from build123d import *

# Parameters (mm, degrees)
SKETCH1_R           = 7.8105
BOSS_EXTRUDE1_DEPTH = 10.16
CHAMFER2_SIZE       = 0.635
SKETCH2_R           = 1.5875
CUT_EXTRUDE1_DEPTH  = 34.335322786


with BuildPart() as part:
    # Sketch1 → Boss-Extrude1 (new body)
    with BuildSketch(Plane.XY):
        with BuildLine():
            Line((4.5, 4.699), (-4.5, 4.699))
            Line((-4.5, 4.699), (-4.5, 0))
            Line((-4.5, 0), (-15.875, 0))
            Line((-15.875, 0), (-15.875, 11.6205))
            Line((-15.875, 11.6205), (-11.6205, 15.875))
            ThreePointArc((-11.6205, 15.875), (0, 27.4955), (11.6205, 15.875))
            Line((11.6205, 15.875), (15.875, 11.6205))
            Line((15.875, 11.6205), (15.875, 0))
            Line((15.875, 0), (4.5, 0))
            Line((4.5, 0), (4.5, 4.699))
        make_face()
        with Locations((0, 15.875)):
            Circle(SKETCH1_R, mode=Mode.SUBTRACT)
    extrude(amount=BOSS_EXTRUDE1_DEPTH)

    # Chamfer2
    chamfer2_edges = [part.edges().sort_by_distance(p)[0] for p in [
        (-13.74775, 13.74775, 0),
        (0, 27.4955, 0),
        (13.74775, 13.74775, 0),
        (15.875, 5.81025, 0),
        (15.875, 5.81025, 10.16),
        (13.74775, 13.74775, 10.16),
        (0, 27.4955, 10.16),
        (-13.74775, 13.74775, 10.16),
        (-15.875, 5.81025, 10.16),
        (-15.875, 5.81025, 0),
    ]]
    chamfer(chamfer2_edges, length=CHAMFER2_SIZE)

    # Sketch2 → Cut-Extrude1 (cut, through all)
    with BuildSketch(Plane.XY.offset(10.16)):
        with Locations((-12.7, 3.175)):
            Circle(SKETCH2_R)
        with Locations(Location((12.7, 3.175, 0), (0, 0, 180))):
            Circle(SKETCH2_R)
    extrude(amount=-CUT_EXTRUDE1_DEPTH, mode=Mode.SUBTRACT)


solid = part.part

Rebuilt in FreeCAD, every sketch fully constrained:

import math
import FreeCAD as App
import Part
import Sketcher
Q = App.Units.Quantity


def edges_at(feature, points):
    """Names of the edges that pass closest to the given points."""
    edges = feature.Shape.Edges
    near = lambda p: min(range(len(edges)), key=lambda i: edges[i].distToShape(Part.Vertex(*p))[0])
    return sorted({f"Edge{near(p) + 1}" for p in points})

doc = App.newDocument("Part")
params = doc.addObject("Spreadsheet::Sheet", "Params")
for row, (alias, value) in enumerate([
    ("sketch1_diameter", "0.615 in"),
    ("sketch1_height", "0.185 in"),
    ("pad1_length", "0.4 in"),
    ("chamfer_size", "0.025 in"),
    ("sketch2_diameter", "0.125 in"),
], start=1):
    params.set(f"A{row}", alias)
    params.set(f"B{row}", "=" + value)
    params.setAlias(f"B{row}", alias)

body = doc.addObject("PartDesign::Body", "Body")

sketch1 = body.newObject("Sketcher::SketchObject", "Sketch")
sketch1.AttachmentSupport = (doc.getObject("XY_Plane"), [""])
sketch1.MapMode = "FlatFace"
sketch1.addGeometry([
    Part.LineSegment(App.Vector(-4.5, 4.7, 0), App.Vector(4.5, 4.7, 0)),
    Part.LineSegment(App.Vector(4.5, 4.7, 0), App.Vector(4.5, 0, 0)),
    Part.LineSegment(App.Vector(4.5, 0, 0), App.Vector(15.9, 0, 0)),
    Part.LineSegment(App.Vector(15.9, 0, 0), App.Vector(15.9, 11.6, 0)),
    Part.LineSegment(App.Vector(15.9, 11.6, 0), App.Vector(11.6, 15.9, 0)),
    Part.ArcOfCircle(Part.Circle(App.Vector(0, 15.9, 0), App.Vector(0, 0, 1), 11.6), math.radians(0), math.radians(180)),
    Part.LineSegment(App.Vector(-11.6, 15.9, 0), App.Vector(-15.9, 11.6, 0)),
    Part.LineSegment(App.Vector(-15.9, 11.6, 0), App.Vector(-15.9, 0, 0)),
    Part.LineSegment(App.Vector(-15.9, 0, 0), App.Vector(-4.5, 0, 0)),
    Part.LineSegment(App.Vector(-4.5, 0, 0), App.Vector(-4.5, 4.7, 0)),
    Part.Circle(App.Vector(0, 15.9, 0), App.Vector(0, 0, 1), 7.8),
], False)
sketch1.addConstraint([
    Sketcher.Constraint("Coincident", 0, 2, 1, 1),
    Sketcher.Constraint("Coincident", 1, 2, 2, 1),
    Sketcher.Constraint("Coincident", 2, 2, 3, 1),
    Sketcher.Constraint("Coincident", 3, 2, 4, 1),
    Sketcher.Constraint("Coincident", 4, 2, 5, 1),
    Sketcher.Constraint("Coincident", 5, 2, 6, 1),
    Sketcher.Constraint("Coincident", 6, 2, 7, 1),
    Sketcher.Constraint("Coincident", 7, 2, 8, 1),
    Sketcher.Constraint("Coincident", 8, 2, 9, 1),
    Sketcher.Constraint("Coincident", 9, 2, 0, 1),
    Sketcher.Constraint("Horizontal", 0),
    Sketcher.Constraint("Vertical", 1),
    Sketcher.Constraint("Horizontal", 2),
    Sketcher.Constraint("Vertical", 3),
    Sketcher.Constraint("Vertical", 7),
    Sketcher.Constraint("Horizontal", 8),
    Sketcher.Constraint("Vertical", 9),
    Sketcher.Constraint("Coincident", 10, 3, 5, 3),
    Sketcher.Constraint("Symmetric", 2, 2, 7, 2, -1, 1),
    Sketcher.Constraint("Symmetric", 4, 2, 5, 2, -2),
    Sketcher.Constraint("Symmetric", 1, 2, 8, 2, -2),
    Sketcher.Constraint("Perpendicular", 4, 6),
    Sketcher.Constraint("Horizontal", 10, 3, 4, 2),
    Sketcher.Constraint("Horizontal", 3, 2, 6, 2),
    Sketcher.Constraint("Diameter", 10, Q("0.615 in")),
    Sketcher.Constraint("Radius", 5, Q("0.4575 in")),
    Sketcher.Constraint("DistanceY", 1, 2, 1, 1, Q("0.185 in")),
    Sketcher.Constraint("DistanceY", 0, 2, 5, 3, Q("0.44 in")),
    Sketcher.Constraint("DistanceY", 3, 1, 3, 2, Q("0.4575 in")),
    Sketcher.Constraint("DistanceX", 0, 1, 0, 2, 9.0),
])
sketch1.setExpression("Constraints[24]", "Params.sketch1_diameter")
sketch1.setExpression("Constraints[26]", "Params.sketch1_height")
pad1 = body.newObject("PartDesign::Pad", "Pad")
pad1.Profile = sketch1
pad1.setExpression("Length", "Params.pad1_length")
doc.recompute()

chamfer = body.newObject("PartDesign::Chamfer", "Chamfer")
chamfer.Base = (pad1, edges_at(pad1, [
    (-13.748, 13.748, 0),
    (0, 27.495, 0),
    (13.748, 13.748, 0),
    (15.875, 5.81, 0),
    (15.875, 5.81, 10.16),
    (13.748, 13.748, 10.16),
    (0, 27.495, 10.16),
    (-13.748, 13.748, 10.16),
    (-15.875, 5.81, 10.16),
    (-15.875, 5.81, 0),
]))
chamfer.setExpression("Size", "Params.chamfer_size")

sketch2 = body.newObject("Sketcher::SketchObject", "Sketch001")
sketch2.AttachmentSupport = (doc.getObject("XY_Plane"), [""])
sketch2.MapMode = "FlatFace"
sketch2.AttachmentOffset = App.Placement(App.Vector(0, 0, 0.4 * 25.4), App.Rotation())
sketch2.addGeometry([
    Part.Circle(App.Vector(-12.7, 3.2, 0), App.Vector(0, 0, 1), 1.6),
    Part.Circle(App.Vector(12.7, 3.2, 0), App.Vector(0, 0, 1), 1.6),
], False)
sketch2.addConstraint([
    Sketcher.Constraint("Equal", 0, 1),
    Sketcher.Constraint("Symmetric", 0, 3, 1, 3, -2),
    Sketcher.Constraint("Diameter", 0, Q("0.125 in")),
    Sketcher.Constraint("DistanceX", 0, 3, 1, 3, Q("1 in")),
    Sketcher.Constraint("DistanceY", -1, 1, 0, 3, Q("0.125 in")),
])
sketch2.setExpression("Constraints[2]", "Params.sketch2_diameter")
pocket1 = body.newObject("PartDesign::Pocket", "Pocket")
pocket1.Profile = sketch2
pocket1.Type = "ThroughAll"

doc.recompute()
